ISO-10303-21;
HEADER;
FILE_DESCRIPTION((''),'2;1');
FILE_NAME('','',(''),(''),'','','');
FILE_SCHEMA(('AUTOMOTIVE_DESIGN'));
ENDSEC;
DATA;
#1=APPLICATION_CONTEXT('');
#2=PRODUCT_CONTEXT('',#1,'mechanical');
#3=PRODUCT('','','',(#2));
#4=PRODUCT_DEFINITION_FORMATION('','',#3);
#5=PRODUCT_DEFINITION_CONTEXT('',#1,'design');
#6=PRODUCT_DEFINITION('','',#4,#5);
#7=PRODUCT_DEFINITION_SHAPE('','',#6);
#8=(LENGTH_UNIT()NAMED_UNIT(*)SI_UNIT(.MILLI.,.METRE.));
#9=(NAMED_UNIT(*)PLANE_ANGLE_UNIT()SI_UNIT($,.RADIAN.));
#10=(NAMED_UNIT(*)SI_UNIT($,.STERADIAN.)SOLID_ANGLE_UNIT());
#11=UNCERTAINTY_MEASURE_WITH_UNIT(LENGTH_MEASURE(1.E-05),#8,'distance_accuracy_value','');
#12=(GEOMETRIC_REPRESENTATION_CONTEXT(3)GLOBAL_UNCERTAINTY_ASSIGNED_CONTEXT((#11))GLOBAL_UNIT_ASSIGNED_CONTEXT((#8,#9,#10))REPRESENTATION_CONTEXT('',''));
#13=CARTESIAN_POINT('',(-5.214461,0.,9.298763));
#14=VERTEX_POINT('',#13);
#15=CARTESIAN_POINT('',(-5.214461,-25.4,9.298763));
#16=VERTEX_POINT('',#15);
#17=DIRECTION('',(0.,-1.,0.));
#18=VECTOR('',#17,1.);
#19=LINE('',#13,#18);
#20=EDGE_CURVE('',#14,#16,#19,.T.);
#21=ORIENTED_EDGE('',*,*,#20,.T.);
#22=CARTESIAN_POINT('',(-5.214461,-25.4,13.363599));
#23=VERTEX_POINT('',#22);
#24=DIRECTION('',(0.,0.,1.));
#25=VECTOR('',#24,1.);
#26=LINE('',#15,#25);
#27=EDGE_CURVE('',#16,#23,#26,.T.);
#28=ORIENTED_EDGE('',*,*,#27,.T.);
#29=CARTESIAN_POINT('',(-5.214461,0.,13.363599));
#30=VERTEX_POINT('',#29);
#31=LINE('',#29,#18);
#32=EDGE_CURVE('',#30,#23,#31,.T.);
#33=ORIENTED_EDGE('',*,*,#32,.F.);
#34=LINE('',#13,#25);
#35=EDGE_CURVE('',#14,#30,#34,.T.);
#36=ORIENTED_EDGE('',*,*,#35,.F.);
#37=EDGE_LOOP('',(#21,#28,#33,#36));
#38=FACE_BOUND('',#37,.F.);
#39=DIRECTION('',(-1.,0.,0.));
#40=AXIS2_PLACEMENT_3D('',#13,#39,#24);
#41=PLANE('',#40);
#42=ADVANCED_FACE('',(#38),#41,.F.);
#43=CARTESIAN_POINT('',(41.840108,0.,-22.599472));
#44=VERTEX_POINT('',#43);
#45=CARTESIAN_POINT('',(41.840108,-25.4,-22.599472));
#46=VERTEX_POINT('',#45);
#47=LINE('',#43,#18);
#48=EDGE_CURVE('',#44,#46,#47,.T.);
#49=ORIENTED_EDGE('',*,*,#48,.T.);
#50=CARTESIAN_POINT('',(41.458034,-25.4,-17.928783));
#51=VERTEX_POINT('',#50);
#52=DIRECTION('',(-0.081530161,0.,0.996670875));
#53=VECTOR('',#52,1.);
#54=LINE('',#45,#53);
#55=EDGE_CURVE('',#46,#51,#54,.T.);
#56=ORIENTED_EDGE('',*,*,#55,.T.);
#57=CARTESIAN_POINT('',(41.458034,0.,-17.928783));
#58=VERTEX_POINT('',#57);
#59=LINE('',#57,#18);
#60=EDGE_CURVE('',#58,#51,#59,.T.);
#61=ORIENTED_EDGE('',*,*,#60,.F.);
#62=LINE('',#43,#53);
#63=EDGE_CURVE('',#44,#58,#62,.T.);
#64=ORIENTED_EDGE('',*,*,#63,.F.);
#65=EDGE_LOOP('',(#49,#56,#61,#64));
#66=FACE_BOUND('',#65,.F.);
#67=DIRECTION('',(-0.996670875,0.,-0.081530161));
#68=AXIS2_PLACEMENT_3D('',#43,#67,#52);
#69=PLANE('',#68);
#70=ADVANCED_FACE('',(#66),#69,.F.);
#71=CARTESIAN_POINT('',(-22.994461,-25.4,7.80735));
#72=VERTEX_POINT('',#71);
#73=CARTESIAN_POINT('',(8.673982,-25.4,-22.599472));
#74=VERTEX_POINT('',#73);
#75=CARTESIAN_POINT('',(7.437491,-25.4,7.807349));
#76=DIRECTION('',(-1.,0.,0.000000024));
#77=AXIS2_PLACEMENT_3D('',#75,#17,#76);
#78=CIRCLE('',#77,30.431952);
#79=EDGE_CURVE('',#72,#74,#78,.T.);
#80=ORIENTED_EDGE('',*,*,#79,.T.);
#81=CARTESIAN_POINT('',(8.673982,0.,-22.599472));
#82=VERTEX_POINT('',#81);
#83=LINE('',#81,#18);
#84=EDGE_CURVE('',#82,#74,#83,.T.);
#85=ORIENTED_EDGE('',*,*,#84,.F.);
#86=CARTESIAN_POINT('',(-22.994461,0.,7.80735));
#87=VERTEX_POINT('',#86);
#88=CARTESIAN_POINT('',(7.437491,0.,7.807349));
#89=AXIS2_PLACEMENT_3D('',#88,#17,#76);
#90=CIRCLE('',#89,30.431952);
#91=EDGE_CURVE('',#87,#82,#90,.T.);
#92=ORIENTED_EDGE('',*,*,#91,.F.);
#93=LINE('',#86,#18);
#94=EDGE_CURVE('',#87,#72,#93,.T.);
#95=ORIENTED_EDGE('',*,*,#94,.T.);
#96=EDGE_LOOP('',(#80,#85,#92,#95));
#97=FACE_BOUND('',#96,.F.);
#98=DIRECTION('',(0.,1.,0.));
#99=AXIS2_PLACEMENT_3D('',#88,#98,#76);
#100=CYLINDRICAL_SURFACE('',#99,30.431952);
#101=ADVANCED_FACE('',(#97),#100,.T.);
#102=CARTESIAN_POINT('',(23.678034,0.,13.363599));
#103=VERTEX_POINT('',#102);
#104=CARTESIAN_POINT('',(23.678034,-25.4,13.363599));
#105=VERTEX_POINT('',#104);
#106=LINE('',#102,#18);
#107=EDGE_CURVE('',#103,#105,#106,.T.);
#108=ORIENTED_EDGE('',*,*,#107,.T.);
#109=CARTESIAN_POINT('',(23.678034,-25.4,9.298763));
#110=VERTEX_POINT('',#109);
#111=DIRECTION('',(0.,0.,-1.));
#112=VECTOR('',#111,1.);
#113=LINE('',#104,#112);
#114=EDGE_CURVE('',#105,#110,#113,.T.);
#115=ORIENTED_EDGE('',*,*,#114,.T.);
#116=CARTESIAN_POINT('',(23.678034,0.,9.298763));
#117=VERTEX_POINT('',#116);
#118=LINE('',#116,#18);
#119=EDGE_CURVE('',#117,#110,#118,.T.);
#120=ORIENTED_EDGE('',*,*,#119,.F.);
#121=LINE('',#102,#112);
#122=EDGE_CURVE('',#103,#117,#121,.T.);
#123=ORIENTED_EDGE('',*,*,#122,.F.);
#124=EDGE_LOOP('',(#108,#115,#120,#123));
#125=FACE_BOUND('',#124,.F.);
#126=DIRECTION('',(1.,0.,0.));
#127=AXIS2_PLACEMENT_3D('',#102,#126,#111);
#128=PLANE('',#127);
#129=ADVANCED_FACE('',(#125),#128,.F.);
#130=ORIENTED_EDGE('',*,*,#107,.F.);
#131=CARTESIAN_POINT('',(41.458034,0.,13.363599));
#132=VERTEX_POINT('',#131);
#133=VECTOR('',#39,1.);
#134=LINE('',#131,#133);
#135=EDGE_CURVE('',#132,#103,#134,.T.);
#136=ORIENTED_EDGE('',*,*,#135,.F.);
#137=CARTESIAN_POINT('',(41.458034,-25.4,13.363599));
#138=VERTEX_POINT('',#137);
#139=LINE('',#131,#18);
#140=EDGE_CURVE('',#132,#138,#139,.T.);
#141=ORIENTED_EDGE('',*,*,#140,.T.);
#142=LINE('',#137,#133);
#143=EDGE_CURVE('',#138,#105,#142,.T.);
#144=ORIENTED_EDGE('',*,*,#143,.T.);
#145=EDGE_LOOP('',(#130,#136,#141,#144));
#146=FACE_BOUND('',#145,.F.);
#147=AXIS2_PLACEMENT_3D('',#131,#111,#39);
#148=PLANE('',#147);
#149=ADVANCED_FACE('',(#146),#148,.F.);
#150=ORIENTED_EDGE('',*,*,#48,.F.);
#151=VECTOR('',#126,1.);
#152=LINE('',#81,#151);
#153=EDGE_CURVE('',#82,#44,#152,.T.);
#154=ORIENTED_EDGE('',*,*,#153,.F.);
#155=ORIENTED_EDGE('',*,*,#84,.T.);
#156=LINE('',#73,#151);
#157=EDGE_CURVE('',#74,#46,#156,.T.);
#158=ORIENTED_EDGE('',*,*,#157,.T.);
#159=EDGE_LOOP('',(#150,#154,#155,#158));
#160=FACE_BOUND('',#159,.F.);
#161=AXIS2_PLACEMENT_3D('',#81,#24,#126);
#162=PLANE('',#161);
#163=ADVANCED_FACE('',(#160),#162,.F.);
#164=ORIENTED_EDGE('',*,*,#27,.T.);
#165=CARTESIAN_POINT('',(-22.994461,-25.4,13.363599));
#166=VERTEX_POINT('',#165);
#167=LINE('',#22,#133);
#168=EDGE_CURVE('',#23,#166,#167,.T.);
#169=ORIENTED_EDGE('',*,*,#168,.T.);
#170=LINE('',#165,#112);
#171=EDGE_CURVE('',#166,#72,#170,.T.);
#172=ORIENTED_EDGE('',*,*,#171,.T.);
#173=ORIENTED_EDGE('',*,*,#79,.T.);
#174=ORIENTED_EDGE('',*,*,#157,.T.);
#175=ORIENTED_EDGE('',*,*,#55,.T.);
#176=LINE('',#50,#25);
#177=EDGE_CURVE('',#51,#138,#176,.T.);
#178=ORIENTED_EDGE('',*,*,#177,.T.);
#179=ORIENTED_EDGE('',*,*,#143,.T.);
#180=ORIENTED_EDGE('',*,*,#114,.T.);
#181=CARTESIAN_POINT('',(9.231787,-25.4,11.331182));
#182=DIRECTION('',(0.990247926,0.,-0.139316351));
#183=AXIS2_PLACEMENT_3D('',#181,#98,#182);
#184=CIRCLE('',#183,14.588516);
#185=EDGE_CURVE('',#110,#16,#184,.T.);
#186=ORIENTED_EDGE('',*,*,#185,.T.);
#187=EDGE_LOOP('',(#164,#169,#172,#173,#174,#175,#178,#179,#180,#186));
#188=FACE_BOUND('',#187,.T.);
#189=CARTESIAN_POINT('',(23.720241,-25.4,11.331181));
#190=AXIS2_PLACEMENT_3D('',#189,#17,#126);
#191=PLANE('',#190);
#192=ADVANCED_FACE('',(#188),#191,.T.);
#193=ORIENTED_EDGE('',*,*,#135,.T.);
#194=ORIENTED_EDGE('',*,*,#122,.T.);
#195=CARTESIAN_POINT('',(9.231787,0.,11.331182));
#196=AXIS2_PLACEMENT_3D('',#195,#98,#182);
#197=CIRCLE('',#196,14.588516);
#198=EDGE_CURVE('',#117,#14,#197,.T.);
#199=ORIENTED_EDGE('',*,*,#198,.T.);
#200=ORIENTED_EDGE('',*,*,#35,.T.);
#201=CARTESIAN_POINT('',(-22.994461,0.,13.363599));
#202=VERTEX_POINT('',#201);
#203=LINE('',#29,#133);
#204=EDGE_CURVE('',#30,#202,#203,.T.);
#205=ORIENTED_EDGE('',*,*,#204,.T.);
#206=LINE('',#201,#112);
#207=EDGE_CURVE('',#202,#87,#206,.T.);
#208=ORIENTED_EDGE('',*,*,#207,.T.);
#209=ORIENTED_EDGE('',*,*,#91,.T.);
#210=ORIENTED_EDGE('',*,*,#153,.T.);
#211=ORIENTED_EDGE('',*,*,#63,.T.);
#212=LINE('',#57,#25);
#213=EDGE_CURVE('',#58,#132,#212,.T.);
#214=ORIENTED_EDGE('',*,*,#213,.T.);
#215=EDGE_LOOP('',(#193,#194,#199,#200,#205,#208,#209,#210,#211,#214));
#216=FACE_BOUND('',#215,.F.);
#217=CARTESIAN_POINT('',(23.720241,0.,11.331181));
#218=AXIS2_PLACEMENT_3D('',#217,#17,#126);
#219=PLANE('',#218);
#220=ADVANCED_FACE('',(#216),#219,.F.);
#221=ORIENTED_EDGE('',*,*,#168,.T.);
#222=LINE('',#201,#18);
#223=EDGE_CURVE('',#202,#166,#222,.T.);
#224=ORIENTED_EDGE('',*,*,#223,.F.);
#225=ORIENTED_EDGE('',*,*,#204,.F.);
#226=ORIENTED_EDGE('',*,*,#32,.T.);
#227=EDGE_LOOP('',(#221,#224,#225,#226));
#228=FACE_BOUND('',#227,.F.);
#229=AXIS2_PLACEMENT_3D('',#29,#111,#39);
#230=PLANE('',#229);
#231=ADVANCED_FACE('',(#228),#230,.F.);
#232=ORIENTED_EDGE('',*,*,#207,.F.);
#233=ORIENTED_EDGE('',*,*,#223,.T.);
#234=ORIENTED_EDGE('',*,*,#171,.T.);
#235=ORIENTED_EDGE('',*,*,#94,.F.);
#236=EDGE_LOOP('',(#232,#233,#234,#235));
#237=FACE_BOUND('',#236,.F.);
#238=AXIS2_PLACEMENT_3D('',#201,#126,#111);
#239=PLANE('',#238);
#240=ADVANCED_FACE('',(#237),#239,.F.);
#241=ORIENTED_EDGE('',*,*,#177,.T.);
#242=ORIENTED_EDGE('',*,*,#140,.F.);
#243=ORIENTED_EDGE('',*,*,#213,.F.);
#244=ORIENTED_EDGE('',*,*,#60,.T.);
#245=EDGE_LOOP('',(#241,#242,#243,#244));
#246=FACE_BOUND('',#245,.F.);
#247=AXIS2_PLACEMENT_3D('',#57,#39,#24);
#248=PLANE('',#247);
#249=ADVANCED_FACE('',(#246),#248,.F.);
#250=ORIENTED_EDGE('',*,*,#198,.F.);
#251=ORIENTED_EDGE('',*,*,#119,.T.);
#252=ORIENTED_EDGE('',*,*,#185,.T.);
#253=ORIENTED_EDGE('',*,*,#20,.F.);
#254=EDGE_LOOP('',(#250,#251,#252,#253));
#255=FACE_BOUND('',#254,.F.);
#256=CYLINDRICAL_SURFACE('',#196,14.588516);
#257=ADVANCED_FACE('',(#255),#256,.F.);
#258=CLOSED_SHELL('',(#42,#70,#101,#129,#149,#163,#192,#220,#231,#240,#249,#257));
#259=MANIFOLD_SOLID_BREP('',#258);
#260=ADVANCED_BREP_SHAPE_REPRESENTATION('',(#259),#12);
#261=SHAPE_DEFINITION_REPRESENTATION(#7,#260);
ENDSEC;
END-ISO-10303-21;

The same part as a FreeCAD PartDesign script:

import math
import FreeCAD as App
import Part
import Sketcher
from FreeCAD import Vector
Q = App.Units.Quantity

doc = App.newDocument("Part")
params = doc.addObject("Spreadsheet::Sheet", "Params")
for row, (alias, value) in enumerate([
    ("sketch1_width", "0.7 in"),
    ("sketch1_height", "0.21875 in"),
    ("pad1_length", "1 in"),
], start=1):
    params.set(f"A{row}", alias)
    params.set(f"B{row}", "=" + value)
    params.setAlias(f"B{row}", alias)

body = doc.addObject("PartDesign::Body", "Body")

# Sketch on XZ plane
sketch1 = body.newObject("Sketcher::SketchObject", "Sketch")
sketch1.AttachmentSupport = (doc.getObject("XZ_Plane"), [""])
sketch1.MapMode = "FlatFace"
sketch1.addGeometry([
    Part.LineSegment(Vector(23.7, 13.4, 0), Vector(23.7, 9.3, 0)),  # 0
    Part.ArcOfCircle(Part.Circle(Vector(9.2, 11.3, 0), Vector(0, 0, 1), 14.6), math.radians(-172), math.radians(-8)),  # 1
    Part.LineSegment(Vector(-5.2, 9.3, 0), Vector(-5.2, 13.4, 0)),  # 2
    Part.LineSegment(Vector(-5.2, 13.4, 0), Vector(-23, 13.4, 0)),  # 3
    Part.LineSegment(Vector(-23, 13.4, 0), Vector(-23, 7.8, 0)),  # 4
    Part.ArcOfCircle(Part.Circle(Vector(7.4, 7.8, 0), Vector(0, 0, 1), 30.4), math.radians(180), math.radians(272)),  # 5
    Part.LineSegment(Vector(8.7, -22.6, 0), Vector(41.8, -22.6, 0)),  # 6
    Part.LineSegment(Vector(41.8, -22.6, 0), Vector(41.5, -17.9, 0)),  # 7
    Part.LineSegment(Vector(41.5, -17.9, 0), Vector(41.5, 13.4, 0)),  # 8
    Part.LineSegment(Vector(41.5, 13.4, 0), Vector(23.7, 13.4, 0)),  # 9
], False)
sketch1.addConstraint([
    Sketcher.Constraint("Coincident", 0, 2, 1, 2),
    Sketcher.Constraint("Coincident", 1, 1, 2, 1),
    Sketcher.Constraint("Coincident", 2, 2, 3, 1),
    Sketcher.Constraint("Coincident", 3, 2, 4, 1),
    Sketcher.Constraint("Tangent", 4, 2, 5, 1),
    Sketcher.Constraint("Coincident", 5, 2, 6, 1),
    Sketcher.Constraint("Coincident", 6, 2, 7, 1),
    Sketcher.Constraint("Coincident", 7, 2, 8, 1),
    Sketcher.Constraint("Coincident", 8, 2, 9, 1),
    Sketcher.Constraint("Coincident", 9, 2, 0, 1),
    Sketcher.Constraint("Vertical", 0),
    Sketcher.Constraint("Vertical", 2),
    Sketcher.Constraint("Horizontal", 3),
    Sketcher.Constraint("Vertical", 4),
    Sketcher.Constraint("Horizontal", 6),
    Sketcher.Constraint("Vertical", 8),
    Sketcher.Constraint("Horizontal", 9),
    Sketcher.Constraint("Horizontal", 0, 2, 1, 1),
    Sketcher.Constraint("Horizontal", 3, 2, 8, 2),
    Sketcher.Constraint("Equal", 3, 9),
    Sketcher.Constraint("DistanceX", 3, 2, 3, 1, Q("0.7 in")),
    Sketcher.Constraint("DistanceY", 4, 2, 4, 1, Q("0.21875 in")),
    Sketcher.Constraint("Radius", 5, 30.431952),
    Sketcher.Constraint("Radius", 1, 14.588516),
    Sketcher.Constraint("DistanceX", 1, 1, 0, 2, Q("1.1374998 in")),
    Sketcher.Constraint("DistanceY", 8, 1, 8, 2, 31.292382),
    Sketcher.Constraint("DistanceY", -1, 1, 2, 2, 13.363599),
    Sketcher.Constraint("Distance", 7, 4.68629),
    Sketcher.Constraint("DistanceX", 6, 1, 6, 2, 33.166126),
    Sketcher.Constraint("DistanceY", 0, 2, 0, 1, 4.064836),
    Sketcher.Constraint("DistanceX", -1, 1, 5, 3, 7.437491),
])
sketch1.setExpression("Constraints[20]", "Params.sketch1_width")
sketch1.setExpression("Constraints[21]", "Params.sketch1_height")
pad1 = body.newObject("PartDesign::Pad", "Pad")
pad1.Profile = sketch1
pad1.setExpression("Length", "Params.pad1_length")

doc.recompute()
